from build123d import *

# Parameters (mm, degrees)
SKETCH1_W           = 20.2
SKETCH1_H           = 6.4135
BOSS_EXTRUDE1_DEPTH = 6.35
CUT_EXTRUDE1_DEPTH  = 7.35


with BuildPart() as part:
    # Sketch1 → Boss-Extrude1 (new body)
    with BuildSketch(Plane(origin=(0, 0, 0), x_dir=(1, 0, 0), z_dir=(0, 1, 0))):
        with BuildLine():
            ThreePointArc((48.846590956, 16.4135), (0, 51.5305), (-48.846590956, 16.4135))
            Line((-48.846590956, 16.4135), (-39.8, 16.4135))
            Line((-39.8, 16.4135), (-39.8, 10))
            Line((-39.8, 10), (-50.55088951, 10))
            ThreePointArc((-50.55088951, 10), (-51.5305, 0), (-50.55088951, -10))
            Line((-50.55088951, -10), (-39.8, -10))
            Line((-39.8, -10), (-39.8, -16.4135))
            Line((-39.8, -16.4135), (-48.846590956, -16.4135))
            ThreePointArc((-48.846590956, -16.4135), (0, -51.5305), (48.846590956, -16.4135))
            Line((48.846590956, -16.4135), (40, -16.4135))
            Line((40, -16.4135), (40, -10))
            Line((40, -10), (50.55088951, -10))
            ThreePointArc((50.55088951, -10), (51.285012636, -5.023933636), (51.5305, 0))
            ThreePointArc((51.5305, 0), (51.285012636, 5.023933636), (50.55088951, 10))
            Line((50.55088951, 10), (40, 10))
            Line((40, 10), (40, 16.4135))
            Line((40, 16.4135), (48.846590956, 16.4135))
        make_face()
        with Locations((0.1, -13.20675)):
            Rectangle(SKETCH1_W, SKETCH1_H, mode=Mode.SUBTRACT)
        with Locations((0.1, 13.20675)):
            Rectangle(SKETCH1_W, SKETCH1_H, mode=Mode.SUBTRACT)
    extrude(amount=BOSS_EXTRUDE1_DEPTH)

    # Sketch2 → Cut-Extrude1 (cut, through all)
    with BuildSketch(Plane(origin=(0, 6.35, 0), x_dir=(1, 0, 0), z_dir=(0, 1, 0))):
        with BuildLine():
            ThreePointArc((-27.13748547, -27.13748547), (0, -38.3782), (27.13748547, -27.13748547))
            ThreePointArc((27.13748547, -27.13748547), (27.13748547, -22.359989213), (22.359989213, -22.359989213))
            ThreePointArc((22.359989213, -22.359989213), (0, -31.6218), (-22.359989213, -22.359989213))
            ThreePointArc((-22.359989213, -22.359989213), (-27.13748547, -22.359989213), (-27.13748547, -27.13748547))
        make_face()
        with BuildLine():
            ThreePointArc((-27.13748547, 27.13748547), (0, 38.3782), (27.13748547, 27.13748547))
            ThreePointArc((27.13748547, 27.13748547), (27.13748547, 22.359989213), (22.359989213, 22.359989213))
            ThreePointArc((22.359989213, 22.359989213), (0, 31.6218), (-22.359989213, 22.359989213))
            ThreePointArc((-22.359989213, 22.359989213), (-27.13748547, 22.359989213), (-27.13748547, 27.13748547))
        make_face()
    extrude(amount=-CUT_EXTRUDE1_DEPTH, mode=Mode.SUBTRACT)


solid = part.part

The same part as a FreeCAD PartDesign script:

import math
import FreeCAD as App
import Part
import Sketcher
from FreeCAD import Vector
Q = App.Units.Quantity


def add_polygon(sketch, points):
    """Adds a closed chain of lines whose ends are joined by coincident constraints."""
    first, n = sketch.GeometryCount, len(points)
    for a, b in zip(points, points[1:] + points[:1]):
        sketch.addGeometry(Part.LineSegment(App.Vector(*a, 0), App.Vector(*b, 0)), False)
    for i in range(n):
        sketch.addConstraint(Sketcher.Constraint("Coincident", first + i, 2, first + (i + 1) % n, 1))

doc = App.newDocument("Part")
body = doc.addObject("PartDesign::Body", "Body")

# Sketch on XZ plane
sketch1 = body.newObject("Sketcher::SketchObject", "Sketch")
sketch1.AttachmentSupport = (doc.getObject("XZ_Plane"), [""])
sketch1.MapMode = "FlatFace"
sketch1.addGeometry(Part.ArcOfCircle(Part.Circle(Vector(0, 0, 0), Vector(0, 0, 1), 52), math.radians(-161), math.radians(-19)), False)  # 0
sketch1.addGeometry(Part.LineSegment(Vector(-49, -16, 0), Vector(-40, -16, 0)), False)  # 1
sketch1.addGeometry(Part.LineSegment(Vector(-40, -16, 0), Vector(-40, -10, 0)), False)  # 2
sketch1.addGeometry(Part.LineSegment(Vector(-40, -10, 0), Vector(-51, -10, 0)), False)  # 3
sketch1.addGeometry(Part.ArcOfCircle(Part.Circle(Vector(0, 0, 0), Vector(0, 0, 1), 52), math.radians(169), math.radians(191)), False)  # 4
sketch1.addGeometry(Part.LineSegment(Vector(-51, 10, 0), Vector(-40, 10, 0)), False)  # 5
sketch1.addGeometry(Part.LineSegment(Vector(-40, 10, 0), Vector(-40, 16, 0)), False)  # 6
sketch1.addGeometry(Part.LineSegment(Vector(-40, 16, 0), Vector(-49, 16, 0)), False)  # 7
sketch1.addGeometry(Part.ArcOfCircle(Part.Circle(Vector(0, 0, 0), Vector(0, 0, 1), 52), math.radians(19), math.radians(161)), False)  # 8
sketch1.addGeometry(Part.LineSegment(Vector(49, 16, 0), Vector(40, 16, 0)), False)  # 9
sketch1.addGeometry(Part.LineSegment(Vector(40, 16, 0), Vector(40, 10, 0)), False)  # 10
sketch1.addGeometry(Part.LineSegment(Vector(40, 10, 0), Vector(51, 10, 0)), False)  # 11
sketch1.addGeometry(Part.ArcOfCircle(Part.Circle(Vector(0, 0, 0), Vector(0, 0, 1), 52), math.radians(0), math.radians(11.19)), False)  # 12
sketch1.addGeometry(Part.ArcOfCircle(Part.Circle(Vector(0, 0, 0), Vector(0, 0, 1), 52), math.radians(-11.19), math.radians(0)), False)  # 13
sketch1.addGeometry(Part.LineSegment(Vector(51, -10, 0), Vector(40, -10, 0)), False)  # 14
sketch1.addGeometry(Part.LineSegment(Vector(40, -10, 0), Vector(40, -16, 0)), False)  # 15
sketch1.addGeometry(Part.LineSegment(Vector(40, -16, 0), Vector(49, -16, 0)), False)  # 16
add_polygon(sketch1, [(10, 16), (-10, 16), (-10, 10), (10, 10)])  # lines 17-20
add_polygon(sketch1, [(10, -10), (-10, -10), (-10, -16), (10, -16)])  # lines 21-24
sketch1.addConstraint(Sketcher.Constraint("Coincident", 0, 1, 1, 1))
sketch1.addConstraint(Sketcher.Constraint("Coincident", 1, 2, 2, 1))
sketch1.addConstraint(Sketcher.Constraint("Coincident", 2, 2, 3, 1))
sketch1.addConstraint(Sketcher.Constraint("Coincident", 3, 2, 4, 2))
sketch1.addConstraint(Sketcher.Constraint("Coincident", 4, 1, 5, 1))
sketch1.addConstraint(Sketcher.Constraint("Coincident", 5, 2, 6, 1))
sketch1.addConstraint(Sketcher.Constraint("Coincident", 6, 2, 7, 1))
sketch1.addConstraint(Sketcher.Constraint("Coincident", 7, 2, 8, 2))
sketch1.addConstraint(Sketcher.Constraint("Coincident", 8, 1, 9, 1))
sketch1.addConstraint(Sketcher.Constraint("Coincident", 9, 2, 10, 1))
sketch1.addConstraint(Sketcher.Constraint("Coincident", 10, 2, 11, 1))
sketch1.addConstraint(Sketcher.Constraint("Coincident", 11, 2, 12, 2))
sketch1.addConstraint(Sketcher.Constraint("Tangent", 12, 1, 13, 2))
sketch1.addConstraint(Sketcher.Constraint("Coincident", 13, 1, 14, 1))
sketch1.addConstraint(Sketcher.Constraint("Coincident", 14, 2, 15, 1))
sketch1.addConstraint(Sketcher.Constraint("Coincident", 15, 2, 16, 1))
sketch1.addConstraint(Sketcher.Constraint("Coincident", 16, 2, 0, 2))
sketch1.addConstraint(Sketcher.Constraint("Horizontal", 1))
sketch1.addConstraint(Sketcher.Constraint("Vertical", 2))
sketch1.addConstraint(Sketcher.Constraint("Horizontal", 3))
sketch1.addConstraint(Sketcher.Constraint("Horizontal", 5))
sketch1.addConstraint(Sketcher.Constraint("Vertical", 6))
sketch1.addConstraint(Sketcher.Constraint("Horizontal", 7))
sketch1.addConstraint(Sketcher.Constraint("Horizontal", 9))
sketch1.addConstraint(Sketcher.Constraint("Vertical", 10))
sketch1.addConstraint(Sketcher.Constraint("Horizontal", 11))
sketch1.addConstraint(Sketcher.Constraint("Horizontal", 14))
sketch1.addConstraint(Sketcher.Constraint("Vertical", 15))
sketch1.addConstraint(Sketcher.Constraint("Horizontal", 16))
sketch1.addConstraint(Sketcher.Constraint("Horizontal", 17))
sketch1.addConstraint(Sketcher.Constraint("Vertical", 18))
sketch1.addConstraint(Sketcher.Constraint("Horizontal", 19))
sketch1.addConstraint(Sketcher.Constraint("Vertical", 20))
sketch1.addConstraint(Sketcher.Constraint("Horizontal", 21))
sketch1.addConstraint(Sketcher.Constraint("Vertical", 22))
sketch1.addConstraint(Sketcher.Constraint("Horizontal", 23))
sketch1.addConstraint(Sketcher.Constraint("Vertical", 24))
sketch1.addConstraint(Sketcher.Constraint("Coincident", 0, 3, -1, 1))
sketch1.addConstraint(Sketcher.Constraint("Coincident", 4, 3, -1, 1))
sketch1.addConstraint(Sketcher.Constraint("Coincident", 8, 3, -1, 1))
sketch1.addConstraint(Sketcher.Constraint("Coincident", 12, 3, -1, 1))
sketch1.addConstraint(Sketcher.Constraint("Equal", 0, 4))
sketch1.addConstraint(Sketcher.Constraint("Equal", 4, 8))
sketch1.addConstraint(Sketcher.Constraint("Equal", 8, 12))
sketch1.addConstraint(Sketcher.Constraint("Equal", 12, 13))
sketch1.addConstraint(Sketcher.Constraint("Symmetric", 2, 2, 5, 2, -1))
sketch1.addConstraint(Sketcher.Constraint("Symmetric", 10, 2, 14, 2, -1))
sketch1.addConstraint(Sketcher.Constraint("Symmetric", 18, 2, 21, 2, -1))
sketch1.addConstraint(Sketcher.Constraint("Symmetric", 20, 2, 23, 2, -1))
sketch1.addConstraint(Sketcher.Constraint("PointOnObject", 12, 1, -1))
sketch1.addConstraint(Sketcher.Constraint("Horizontal", 7, 2, 8, 1))
sketch1.addConstraint(Sketcher.Constraint("Horizontal", 5, 2, 10, 2))
sketch1.addConstraint(Sketcher.Constraint("Horizontal", 1, 2, 15, 2))
sketch1.addConstraint(Sketcher.Constraint("Horizontal", 9, 2, 17, 2))
sketch1.addConstraint(Sketcher.Constraint("Horizontal", 11, 2, 18, 2))
sketch1.addConstraint(Sketcher.Constraint("Horizontal", 16, 2, 22, 2))
sketch1.addConstraint(Sketcher.Constraint("Radius", 0, Q("51.5305 mm")))
sketch1.addConstraint(Sketcher.Constraint("DistanceY", 2, 1, 2, 2, Q("0.2525 in")))
sketch1.addConstraint(Sketcher.Constraint("DistanceX", 17, 2, 17, 1, Q("20.2 mm")))
sketch1.addConstraint(Sketcher.Constraint("DistanceX", 1, 1, 1, 2, Q("9.046591 mm")))
sketch1.addConstraint(Sketcher.Constraint("DistanceX", 3, 2, 3, 1, Q("10.75089 mm")))
sketch1.addConstraint(Sketcher.Constraint("DistanceX", 9, 2, 9, 1, Q("8.846591 mm")))
sketch1.addConstraint(Sketcher.Constraint("DistanceX", 17, 2, -1, 1, Q("10 mm")))
pad1 = body.newObject("PartDesign::Pad", "Pad")
pad1.Profile = sketch1
pad1.Length = Q("0.25 in")
pad1.Reversed = True

# Sketch on XZ plane
sketch2 = body.newObject("Sketcher::SketchObject", "Sketch001")
sketch2.AttachmentSupport = (doc.getObject("XZ_Plane"), [""])
sketch2.MapMode = "FlatFace"
sketch2.AttachmentOffset = App.Placement(Vector(0, 0, -0.25 * 25.4), App.Rotation())
sketch2.addGeometry(Part.ArcOfCircle(Part.Circle(Vector(0, 0, 0), Vector(0, 0, 1), 38.4), math.radians(45), math.radians(135)), False)
sketch2.addGeometry(Part.ArcOfCircle(Part.Circle(Vector(24.7, 24.7, 0), Vector(0, 0, 1), 3.4), math.radians(-135), math.radians(45)), False)
sketch2.addGeometry(Part.ArcOfCircle(Part.Circle(Vector(0, 0, 0), Vector(0, 0, 1), 31.6), math.radians(45), math.radians(135)), False)
sketch2.addGeometry(Part.ArcOfCircle(Part.Circle(Vector(-24.7, 24.7, 0), Vector(0, 0, 1), 3.4), math.radians(135), math.radians(315)), False)
sketch2.addGeometry(Part.ArcOfCircle(Part.Circle(Vector(0, 0, 0), Vector(0, 0, 1), 38.4), math.radians(-135), math.radians(-45)), False)
sketch2.addGeometry(Part.ArcOfCircle(Part.Circle(Vector(-24.7, -24.7, 0), Vector(0, 0, 1), 3.4), math.radians(45), math.radians(225)), False)
sketch2.addGeometry(Part.ArcOfCircle(Part.Circle(Vector(0, 0, 0), Vector(0, 0, 1), 31.6), math.radians(-135), math.radians(-45)), False)
sketch2.addGeometry(Part.ArcOfCircle(Part.Circle(Vector(24.7, -24.7, 0), Vector(0, 0, 1), 3.4), math.radians(-45), math.radians(135)), False)
sketch2.addConstraint(Sketcher.Constraint("Tangent", 0, 1, 1, 2))
sketch2.addConstraint(Sketcher.Constraint("Tangent", 1, 1, 2, 1))
sketch2.addConstraint(Sketcher.Constraint("Tangent", 2, 2, 3, 2))
sketch2.addConstraint(Sketcher.Constraint("Tangent", 3, 1, 0, 2))
sketch2.addConstraint(Sketcher.Constraint("Tangent", 4, 1, 5, 2))
sketch2.addConstraint(Sketcher.Constraint("Tangent", 5, 1, 6, 1))
sketch2.addConstraint(Sketcher.Constraint("Tangent", 6, 2, 7, 2))
sketch2.addConstraint(Sketcher.Constraint("Tangent", 7, 1, 4, 2))
sketch2.addConstraint(Sketcher.Constraint("Coincident", 0, 3, -1, 1))
sketch2.addConstraint(Sketcher.Constraint("Coincident", 2, 3, -1, 1))
sketch2.addConstraint(Sketcher.Constraint("Coincident", 4, 3, -1, 1))
sketch2.addConstraint(Sketcher.Constraint("Coincident", 6, 3, -1, 1))
sketch2.addConstraint(Sketcher.Constraint("Equal", 0, 4))
sketch2.addConstraint(Sketcher.Constraint("Equal", 3, 5))
sketch2.addConstraint(Sketcher.Constraint("Horizontal", 1, 3, 3, 3))
sketch2.addConstraint(Sketcher.Constraint("Horizontal", 5, 3, 7, 3))
sketch2.addConstraint(Sketcher.Constraint("Vertical", 3, 3, 5, 3))
sketch2.addConstraint(Sketcher.Constraint("Radius", 1, Q("0.133 in")))
sketch2.addConstraint(Sketcher.Constraint("Radius", 0, Q("38.3782 mm")))
sketch2.addConstraint(Sketcher.Constraint("DistanceX", -1, 1, 1, 1, Q("22.359989 mm")))
pocket1 = body.newObject("PartDesign::Pocket", "Pocket")
pocket1.Profile = sketch2
pocket1.Type = "ThroughAll"
pocket1.Reversed = True

doc.recompute()
